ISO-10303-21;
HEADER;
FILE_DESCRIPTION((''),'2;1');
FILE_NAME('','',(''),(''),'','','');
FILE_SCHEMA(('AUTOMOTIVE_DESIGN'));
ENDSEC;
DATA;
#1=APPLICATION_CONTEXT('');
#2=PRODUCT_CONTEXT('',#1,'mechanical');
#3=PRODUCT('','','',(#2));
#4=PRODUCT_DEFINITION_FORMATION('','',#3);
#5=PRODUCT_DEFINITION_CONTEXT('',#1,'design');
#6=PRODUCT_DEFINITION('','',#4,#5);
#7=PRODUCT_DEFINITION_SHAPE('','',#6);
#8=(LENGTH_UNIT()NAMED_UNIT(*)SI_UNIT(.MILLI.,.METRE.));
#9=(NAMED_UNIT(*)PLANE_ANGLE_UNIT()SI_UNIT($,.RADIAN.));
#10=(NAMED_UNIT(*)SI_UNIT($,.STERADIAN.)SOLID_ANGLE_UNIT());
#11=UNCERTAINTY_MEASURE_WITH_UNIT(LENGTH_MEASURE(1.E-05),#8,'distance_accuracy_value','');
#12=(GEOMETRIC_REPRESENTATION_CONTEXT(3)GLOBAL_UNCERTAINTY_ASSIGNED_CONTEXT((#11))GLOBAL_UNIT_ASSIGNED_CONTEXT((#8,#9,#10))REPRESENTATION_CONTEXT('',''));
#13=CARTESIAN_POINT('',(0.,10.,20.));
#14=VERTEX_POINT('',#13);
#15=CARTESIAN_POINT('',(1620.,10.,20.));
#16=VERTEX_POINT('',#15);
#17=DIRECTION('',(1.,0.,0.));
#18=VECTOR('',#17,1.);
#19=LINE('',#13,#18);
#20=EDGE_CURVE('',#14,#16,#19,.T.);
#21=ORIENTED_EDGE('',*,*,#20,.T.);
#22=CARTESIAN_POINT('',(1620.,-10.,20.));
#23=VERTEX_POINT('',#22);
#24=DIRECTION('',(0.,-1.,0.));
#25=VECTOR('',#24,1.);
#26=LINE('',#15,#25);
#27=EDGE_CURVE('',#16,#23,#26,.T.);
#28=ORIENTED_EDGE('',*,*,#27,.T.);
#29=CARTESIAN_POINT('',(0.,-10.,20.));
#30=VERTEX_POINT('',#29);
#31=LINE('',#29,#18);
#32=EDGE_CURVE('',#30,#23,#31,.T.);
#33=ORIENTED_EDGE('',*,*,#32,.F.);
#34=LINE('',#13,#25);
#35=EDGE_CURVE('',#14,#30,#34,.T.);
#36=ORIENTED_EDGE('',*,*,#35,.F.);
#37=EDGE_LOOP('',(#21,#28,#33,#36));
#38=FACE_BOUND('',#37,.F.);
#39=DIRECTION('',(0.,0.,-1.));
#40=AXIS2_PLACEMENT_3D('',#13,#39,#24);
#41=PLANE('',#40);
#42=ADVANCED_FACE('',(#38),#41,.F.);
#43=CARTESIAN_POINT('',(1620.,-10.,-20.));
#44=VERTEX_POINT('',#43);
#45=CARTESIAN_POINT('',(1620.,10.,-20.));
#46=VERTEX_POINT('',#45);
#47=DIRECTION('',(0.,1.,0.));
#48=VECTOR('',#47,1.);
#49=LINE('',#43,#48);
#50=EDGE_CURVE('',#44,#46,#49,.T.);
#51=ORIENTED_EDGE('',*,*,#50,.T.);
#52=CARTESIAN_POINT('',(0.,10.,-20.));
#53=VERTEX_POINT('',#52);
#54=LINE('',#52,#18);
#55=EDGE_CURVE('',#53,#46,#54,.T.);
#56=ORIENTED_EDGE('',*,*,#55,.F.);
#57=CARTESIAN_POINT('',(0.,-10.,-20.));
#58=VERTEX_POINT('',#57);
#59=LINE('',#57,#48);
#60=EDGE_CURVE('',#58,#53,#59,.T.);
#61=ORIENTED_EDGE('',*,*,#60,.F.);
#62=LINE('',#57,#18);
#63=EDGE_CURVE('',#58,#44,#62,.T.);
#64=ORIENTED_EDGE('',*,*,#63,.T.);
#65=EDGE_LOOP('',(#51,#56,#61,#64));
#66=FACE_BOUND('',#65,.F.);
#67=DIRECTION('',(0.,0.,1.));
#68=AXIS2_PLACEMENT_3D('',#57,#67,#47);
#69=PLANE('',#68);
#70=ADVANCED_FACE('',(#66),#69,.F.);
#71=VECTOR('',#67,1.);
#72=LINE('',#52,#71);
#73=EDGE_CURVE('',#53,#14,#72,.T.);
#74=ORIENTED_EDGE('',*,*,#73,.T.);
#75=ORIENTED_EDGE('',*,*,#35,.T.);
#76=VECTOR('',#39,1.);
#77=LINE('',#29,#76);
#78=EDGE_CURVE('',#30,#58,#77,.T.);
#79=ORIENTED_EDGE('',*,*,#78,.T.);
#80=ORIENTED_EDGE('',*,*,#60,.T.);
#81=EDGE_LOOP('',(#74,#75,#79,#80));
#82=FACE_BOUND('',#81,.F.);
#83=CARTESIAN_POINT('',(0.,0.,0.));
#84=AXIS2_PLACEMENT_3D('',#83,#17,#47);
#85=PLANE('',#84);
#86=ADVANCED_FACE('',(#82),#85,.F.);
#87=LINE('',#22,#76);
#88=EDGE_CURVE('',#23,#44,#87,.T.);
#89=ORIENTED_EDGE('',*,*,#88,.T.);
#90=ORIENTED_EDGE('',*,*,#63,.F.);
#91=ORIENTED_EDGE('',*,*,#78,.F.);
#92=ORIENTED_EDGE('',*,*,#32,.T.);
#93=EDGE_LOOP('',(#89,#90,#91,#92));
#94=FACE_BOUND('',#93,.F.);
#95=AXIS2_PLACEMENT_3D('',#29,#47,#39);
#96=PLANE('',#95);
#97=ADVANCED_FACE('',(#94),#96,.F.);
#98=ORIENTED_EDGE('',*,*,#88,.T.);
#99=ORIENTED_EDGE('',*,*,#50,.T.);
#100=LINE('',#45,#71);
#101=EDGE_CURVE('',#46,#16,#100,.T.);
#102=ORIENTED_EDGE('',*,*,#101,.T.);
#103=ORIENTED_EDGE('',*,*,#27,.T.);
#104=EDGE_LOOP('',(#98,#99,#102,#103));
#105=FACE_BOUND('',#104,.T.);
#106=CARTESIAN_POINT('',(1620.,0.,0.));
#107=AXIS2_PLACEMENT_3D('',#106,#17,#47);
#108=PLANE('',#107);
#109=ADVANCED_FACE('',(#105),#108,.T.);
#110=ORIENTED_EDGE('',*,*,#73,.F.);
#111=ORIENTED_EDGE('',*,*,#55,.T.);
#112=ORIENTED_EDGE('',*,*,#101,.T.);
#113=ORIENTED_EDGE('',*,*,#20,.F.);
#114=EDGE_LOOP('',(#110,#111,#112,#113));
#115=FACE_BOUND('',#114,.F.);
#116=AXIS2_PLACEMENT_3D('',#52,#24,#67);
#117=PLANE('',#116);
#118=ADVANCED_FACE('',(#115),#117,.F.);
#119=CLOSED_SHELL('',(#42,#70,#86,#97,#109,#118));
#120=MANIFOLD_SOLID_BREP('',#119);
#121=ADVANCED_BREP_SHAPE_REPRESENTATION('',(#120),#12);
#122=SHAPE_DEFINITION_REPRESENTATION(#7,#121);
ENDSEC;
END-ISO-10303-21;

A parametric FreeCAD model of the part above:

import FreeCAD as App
import Part
import Sketcher

V = App.Vector
Q = App.Units.Quantity


def add_polygon(sketch, points):
    """Adds a closed chain of lines whose ends are joined by coincident constraints."""
    first, n = sketch.GeometryCount, len(points)
    for a, b in zip(points, points[1:] + points[:1]):
        sketch.addGeometry(Part.LineSegment(App.Vector(*a, 0), App.Vector(*b, 0)), False)
    for i in range(n):
        sketch.addConstraint(Sketcher.Constraint("Coincident", first + i, 2, first + (i + 1) % n, 1))

doc = App.newDocument("Part")
body = doc.addObject("PartDesign::Body", "Body")

# Sketch on YZ plane
sketch1 = body.newObject("Sketcher::SketchObject", "Sketch")
sketch1.AttachmentSupport = (doc.getObject("YZ_Plane"), [""])
sketch1.MapMode = "FlatFace"
add_polygon(sketch1, [(-10, 20), (-10, -20), (10, -20), (10, 20)])  # lines 0-3
sketch1.addConstraint([
    Sketcher.Constraint("Vertical", 0),
    Sketcher.Constraint("Horizontal", 1),
    Sketcher.Constraint("Vertical", 2),
    Sketcher.Constraint("Horizontal", 3),
    Sketcher.Constraint("Symmetric", 0, 2, 2, 2, -1, 1),
    Sketcher.Constraint("DistanceX", 1, 1, 1, 2, Q("20 mm")),
    Sketcher.Constraint("DistanceY", 0, 2, 0, 1, Q("40 mm")),
])
pad1 = body.newObject("PartDesign::Pad", "Pad")
pad1.Profile = sketch1
pad1.Length = 1620

doc.recompute()
